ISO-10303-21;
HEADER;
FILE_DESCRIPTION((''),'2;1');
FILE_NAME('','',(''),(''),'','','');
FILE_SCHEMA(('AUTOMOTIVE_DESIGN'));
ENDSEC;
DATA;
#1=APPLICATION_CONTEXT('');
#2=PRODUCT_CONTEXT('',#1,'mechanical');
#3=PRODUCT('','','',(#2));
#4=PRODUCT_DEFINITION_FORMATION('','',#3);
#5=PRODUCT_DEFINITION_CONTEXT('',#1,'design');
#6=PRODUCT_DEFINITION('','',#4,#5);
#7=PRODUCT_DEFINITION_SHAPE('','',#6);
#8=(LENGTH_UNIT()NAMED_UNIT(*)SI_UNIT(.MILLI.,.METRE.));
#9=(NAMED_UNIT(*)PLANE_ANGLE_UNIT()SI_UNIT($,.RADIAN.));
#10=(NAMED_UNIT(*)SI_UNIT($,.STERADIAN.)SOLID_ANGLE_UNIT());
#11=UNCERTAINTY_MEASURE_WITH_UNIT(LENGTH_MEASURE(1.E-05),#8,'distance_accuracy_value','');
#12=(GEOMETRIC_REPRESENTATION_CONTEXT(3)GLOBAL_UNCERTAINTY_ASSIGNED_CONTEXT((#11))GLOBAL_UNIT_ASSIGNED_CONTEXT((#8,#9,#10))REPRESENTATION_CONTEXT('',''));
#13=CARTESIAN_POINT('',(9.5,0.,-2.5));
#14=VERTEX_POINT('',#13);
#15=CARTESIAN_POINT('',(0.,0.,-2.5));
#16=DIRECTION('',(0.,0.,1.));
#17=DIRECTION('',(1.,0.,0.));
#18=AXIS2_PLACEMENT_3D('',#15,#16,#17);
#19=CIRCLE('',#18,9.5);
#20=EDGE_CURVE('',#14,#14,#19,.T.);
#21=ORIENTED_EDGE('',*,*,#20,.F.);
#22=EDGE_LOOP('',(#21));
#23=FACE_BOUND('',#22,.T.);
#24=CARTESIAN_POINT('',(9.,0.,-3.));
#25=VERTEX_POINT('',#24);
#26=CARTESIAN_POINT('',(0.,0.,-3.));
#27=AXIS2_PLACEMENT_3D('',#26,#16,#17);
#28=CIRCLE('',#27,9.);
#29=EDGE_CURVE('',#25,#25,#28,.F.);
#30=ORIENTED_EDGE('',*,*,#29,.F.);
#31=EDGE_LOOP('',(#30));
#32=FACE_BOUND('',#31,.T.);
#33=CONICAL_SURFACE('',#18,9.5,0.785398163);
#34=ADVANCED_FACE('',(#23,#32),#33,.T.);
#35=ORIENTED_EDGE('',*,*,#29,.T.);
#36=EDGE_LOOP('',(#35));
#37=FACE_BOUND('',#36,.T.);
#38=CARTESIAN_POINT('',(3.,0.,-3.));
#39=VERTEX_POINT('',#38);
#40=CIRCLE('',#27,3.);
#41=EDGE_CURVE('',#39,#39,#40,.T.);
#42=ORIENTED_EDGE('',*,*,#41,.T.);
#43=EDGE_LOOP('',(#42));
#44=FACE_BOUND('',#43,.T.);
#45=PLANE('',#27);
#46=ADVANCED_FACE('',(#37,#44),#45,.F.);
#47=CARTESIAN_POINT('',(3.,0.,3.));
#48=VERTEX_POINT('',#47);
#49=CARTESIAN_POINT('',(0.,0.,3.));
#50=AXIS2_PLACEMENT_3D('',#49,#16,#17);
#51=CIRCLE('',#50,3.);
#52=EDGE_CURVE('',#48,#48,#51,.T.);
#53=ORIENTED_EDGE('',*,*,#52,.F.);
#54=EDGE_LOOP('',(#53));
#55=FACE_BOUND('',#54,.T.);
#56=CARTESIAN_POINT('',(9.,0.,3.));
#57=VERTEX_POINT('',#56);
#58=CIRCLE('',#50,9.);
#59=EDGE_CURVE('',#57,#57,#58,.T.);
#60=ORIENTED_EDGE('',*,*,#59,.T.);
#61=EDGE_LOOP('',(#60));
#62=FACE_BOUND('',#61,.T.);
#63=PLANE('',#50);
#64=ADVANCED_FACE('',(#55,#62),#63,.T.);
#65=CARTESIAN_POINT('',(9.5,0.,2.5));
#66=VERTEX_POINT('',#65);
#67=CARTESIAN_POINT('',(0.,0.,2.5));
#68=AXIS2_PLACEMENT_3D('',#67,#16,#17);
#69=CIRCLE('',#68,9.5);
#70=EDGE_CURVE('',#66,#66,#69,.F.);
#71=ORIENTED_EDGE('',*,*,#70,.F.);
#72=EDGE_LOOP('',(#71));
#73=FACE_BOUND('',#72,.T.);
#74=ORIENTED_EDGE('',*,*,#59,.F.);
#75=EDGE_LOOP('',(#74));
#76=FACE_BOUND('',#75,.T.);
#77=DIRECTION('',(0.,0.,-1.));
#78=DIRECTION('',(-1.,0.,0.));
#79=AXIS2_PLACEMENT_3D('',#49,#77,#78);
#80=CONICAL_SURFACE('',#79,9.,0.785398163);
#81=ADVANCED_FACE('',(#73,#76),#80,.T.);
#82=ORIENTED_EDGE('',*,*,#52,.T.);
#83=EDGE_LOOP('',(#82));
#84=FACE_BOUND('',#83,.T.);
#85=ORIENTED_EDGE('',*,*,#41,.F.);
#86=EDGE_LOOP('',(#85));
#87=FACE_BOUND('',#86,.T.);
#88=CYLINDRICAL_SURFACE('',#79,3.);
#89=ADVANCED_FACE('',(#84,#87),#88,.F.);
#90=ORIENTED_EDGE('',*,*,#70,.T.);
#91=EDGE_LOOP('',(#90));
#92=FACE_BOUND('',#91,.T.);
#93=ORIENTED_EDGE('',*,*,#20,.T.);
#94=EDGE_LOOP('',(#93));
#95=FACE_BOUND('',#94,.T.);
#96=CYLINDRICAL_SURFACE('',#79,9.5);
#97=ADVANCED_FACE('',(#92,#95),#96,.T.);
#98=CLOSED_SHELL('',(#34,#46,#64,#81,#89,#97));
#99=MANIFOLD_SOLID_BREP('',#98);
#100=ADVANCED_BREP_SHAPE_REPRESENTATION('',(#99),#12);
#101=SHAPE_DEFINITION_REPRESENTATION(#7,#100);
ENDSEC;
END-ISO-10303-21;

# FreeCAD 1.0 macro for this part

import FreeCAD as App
import Part
import Sketcher
Q = App.Units.Quantity


def edges_at(feature, points):
    """Names of the edges that pass closest to the given points."""
    edges = feature.Shape.Edges
    near = lambda p: min(range(len(edges)), key=lambda i: edges[i].distToShape(Part.Vertex(*p))[0])
    return sorted({f"Edge{near(p) + 1}" for p in points})

doc = App.newDocument("Part")
body = doc.addObject("PartDesign::Body", "Body")

sketch1 = body.newObject("Sketcher::SketchObject", "Sketch")
sketch1.AttachmentSupport = (doc.getObject("XY_Plane"), [""])
sketch1.MapMode = "FlatFace"
sketch1.addGeometry(Part.Circle(App.Vector(0, 0, 0), App.Vector(0, 0, 1), 9.5), False)
sketch1.addGeometry(Part.Circle(App.Vector(0, 0, 0), App.Vector(0, 0, 1), 3), False)
sketch1.addConstraint(Sketcher.Constraint("Coincident", 0, 3, -1, 1))
sketch1.addConstraint(Sketcher.Constraint("Coincident", 1, 3, -1, 1))
sketch1.addConstraint(Sketcher.Constraint("Diameter", 0, Q("19 mm")))
sketch1.addConstraint(Sketcher.Constraint("Diameter", 1, Q("6 mm")))
pad1 = body.newObject("PartDesign::Pad", "Pad")
pad1.Profile = sketch1
pad1.Length = 6
pad1.Midplane = True
doc.recompute()

chamfer = body.newObject("PartDesign::Chamfer", "Chamfer")
chamfer.Base = (pad1, edges_at(pad1, [(-9.5, 0, -3), (-9.5, 0, 3)]))
chamfer.Size = 0.5

doc.recompute()
